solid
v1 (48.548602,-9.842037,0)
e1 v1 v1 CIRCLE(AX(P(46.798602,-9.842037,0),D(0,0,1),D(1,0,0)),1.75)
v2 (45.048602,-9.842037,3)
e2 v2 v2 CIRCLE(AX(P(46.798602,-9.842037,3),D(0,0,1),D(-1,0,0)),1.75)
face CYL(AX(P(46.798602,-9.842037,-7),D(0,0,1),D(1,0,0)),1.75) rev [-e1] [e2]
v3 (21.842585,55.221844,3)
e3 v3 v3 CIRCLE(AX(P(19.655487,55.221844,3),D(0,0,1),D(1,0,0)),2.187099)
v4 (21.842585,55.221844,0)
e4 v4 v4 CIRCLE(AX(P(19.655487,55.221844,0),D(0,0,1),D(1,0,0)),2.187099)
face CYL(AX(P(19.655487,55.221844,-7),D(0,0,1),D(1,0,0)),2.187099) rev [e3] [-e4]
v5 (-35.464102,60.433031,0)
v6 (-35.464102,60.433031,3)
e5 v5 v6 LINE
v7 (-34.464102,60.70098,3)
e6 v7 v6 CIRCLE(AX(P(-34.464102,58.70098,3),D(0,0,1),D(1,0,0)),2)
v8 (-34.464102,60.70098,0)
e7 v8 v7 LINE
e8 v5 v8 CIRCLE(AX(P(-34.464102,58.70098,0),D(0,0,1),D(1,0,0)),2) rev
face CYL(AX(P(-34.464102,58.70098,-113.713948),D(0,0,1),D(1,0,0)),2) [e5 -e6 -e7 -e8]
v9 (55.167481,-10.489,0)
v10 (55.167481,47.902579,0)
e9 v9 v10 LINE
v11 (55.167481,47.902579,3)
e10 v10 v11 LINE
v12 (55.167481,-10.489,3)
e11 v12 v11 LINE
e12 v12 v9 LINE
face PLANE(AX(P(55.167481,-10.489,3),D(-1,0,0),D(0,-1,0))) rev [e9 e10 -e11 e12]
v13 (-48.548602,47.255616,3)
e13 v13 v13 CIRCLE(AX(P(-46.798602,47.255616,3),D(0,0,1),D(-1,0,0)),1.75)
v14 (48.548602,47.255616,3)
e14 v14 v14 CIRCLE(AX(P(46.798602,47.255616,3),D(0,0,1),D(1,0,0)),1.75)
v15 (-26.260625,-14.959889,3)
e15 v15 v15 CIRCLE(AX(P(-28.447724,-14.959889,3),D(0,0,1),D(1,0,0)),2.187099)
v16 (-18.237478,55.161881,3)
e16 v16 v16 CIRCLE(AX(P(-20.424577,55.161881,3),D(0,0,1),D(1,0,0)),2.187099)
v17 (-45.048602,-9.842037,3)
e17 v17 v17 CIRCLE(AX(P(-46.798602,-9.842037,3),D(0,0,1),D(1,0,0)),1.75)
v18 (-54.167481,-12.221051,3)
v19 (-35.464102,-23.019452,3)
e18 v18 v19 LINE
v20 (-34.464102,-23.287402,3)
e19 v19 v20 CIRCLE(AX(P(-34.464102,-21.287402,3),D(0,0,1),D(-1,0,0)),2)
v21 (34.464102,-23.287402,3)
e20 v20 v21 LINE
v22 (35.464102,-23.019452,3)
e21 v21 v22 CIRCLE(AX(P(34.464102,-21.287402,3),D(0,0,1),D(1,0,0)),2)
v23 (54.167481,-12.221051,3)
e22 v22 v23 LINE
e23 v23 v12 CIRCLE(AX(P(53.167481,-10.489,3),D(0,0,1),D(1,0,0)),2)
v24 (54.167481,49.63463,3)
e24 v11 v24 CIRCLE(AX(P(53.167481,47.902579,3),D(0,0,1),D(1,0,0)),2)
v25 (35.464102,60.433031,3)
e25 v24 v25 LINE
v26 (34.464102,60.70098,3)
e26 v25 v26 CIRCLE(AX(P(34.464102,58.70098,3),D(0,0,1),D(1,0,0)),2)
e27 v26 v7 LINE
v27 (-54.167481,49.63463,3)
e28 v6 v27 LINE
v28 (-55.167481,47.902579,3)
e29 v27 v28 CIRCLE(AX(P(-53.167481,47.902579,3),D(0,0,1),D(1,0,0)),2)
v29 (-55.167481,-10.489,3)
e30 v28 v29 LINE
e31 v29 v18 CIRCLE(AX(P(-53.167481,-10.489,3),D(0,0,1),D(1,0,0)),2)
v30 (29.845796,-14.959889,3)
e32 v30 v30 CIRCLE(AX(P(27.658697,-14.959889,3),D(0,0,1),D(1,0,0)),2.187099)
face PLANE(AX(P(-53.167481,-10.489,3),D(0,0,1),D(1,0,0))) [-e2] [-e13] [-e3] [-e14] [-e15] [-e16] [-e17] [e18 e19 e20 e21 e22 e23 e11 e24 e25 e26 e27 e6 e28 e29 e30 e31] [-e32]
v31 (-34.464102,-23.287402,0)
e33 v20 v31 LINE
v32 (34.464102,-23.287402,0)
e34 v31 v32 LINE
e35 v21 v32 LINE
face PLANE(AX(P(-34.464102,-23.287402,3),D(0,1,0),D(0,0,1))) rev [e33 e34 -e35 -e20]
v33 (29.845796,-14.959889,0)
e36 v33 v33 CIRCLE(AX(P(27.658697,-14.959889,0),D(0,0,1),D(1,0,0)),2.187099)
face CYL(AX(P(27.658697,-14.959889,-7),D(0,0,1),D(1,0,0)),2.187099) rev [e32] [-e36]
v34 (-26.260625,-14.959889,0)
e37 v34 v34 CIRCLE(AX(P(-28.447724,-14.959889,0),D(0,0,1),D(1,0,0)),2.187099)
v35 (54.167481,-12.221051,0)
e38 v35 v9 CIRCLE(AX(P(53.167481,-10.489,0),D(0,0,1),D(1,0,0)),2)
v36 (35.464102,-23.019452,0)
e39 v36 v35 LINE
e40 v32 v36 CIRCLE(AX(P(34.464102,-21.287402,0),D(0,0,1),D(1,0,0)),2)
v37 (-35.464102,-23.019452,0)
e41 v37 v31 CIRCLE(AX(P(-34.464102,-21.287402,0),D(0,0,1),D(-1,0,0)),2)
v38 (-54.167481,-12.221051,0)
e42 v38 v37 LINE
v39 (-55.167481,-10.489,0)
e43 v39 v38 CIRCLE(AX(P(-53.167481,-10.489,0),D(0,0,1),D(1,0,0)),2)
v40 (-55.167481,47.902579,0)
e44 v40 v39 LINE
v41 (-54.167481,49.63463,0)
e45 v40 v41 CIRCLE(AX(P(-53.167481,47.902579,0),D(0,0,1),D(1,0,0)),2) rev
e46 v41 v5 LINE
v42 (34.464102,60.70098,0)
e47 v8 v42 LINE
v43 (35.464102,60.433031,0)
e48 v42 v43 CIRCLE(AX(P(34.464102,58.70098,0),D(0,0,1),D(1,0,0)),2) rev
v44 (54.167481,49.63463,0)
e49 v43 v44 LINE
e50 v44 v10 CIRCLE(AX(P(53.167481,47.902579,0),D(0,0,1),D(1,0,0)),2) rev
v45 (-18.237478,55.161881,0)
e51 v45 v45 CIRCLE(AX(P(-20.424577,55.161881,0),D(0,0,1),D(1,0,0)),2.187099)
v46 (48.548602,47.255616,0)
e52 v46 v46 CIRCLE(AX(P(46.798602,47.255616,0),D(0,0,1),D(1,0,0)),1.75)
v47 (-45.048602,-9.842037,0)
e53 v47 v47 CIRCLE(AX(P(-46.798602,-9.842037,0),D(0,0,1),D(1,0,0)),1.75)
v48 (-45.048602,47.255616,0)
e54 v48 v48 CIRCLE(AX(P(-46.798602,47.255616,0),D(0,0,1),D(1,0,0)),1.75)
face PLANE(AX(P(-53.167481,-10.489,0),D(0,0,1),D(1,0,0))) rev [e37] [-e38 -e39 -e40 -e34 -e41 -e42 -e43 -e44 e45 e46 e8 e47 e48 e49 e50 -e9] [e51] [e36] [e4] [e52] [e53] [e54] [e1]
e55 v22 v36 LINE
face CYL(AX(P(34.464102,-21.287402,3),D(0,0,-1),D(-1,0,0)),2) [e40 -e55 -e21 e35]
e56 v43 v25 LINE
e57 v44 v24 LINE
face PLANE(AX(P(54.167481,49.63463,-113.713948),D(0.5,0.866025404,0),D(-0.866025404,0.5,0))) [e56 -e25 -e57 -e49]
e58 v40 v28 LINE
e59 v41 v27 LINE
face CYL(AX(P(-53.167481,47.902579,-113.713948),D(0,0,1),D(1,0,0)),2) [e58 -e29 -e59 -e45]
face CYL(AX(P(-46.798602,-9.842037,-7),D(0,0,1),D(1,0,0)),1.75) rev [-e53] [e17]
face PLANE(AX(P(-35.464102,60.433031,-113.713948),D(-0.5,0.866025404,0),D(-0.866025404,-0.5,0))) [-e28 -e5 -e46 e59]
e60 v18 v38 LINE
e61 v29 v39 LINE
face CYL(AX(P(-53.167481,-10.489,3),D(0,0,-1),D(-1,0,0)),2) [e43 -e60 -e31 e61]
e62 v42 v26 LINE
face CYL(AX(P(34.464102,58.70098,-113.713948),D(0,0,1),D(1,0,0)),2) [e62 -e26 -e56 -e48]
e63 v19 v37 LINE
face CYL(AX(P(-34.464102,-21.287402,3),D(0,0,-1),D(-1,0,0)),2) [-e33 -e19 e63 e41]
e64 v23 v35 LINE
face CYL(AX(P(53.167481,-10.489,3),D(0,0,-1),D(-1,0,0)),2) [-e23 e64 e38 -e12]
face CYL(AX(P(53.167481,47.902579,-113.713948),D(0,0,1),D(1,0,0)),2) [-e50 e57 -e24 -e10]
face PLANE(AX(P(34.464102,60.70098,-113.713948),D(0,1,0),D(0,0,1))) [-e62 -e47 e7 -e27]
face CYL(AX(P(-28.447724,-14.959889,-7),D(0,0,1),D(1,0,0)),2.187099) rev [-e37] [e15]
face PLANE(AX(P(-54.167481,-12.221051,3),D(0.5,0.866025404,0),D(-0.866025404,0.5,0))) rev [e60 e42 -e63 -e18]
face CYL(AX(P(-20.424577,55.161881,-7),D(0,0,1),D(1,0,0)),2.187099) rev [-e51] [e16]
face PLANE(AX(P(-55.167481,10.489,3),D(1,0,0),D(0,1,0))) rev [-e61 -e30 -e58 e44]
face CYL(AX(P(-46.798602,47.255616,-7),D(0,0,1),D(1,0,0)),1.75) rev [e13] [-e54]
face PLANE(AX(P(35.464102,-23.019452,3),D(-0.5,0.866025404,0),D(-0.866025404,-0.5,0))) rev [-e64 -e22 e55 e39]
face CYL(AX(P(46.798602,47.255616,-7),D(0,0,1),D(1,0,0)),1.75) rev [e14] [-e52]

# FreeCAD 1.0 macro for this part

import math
import FreeCAD as App
import Part
import Sketcher

V = App.Vector
Q = App.Units.Quantity

doc = App.newDocument("Part")
body = doc.addObject("PartDesign::Body", "Body")

# Sketch on XY plane
sketch1 = doc.addObject("Sketcher::SketchObject", "Sketch")
body.addObject(sketch1)
sketch1.AttachmentSupport = (doc.XY_Plane, [""])
sketch1.MapMode = "FlatFace"
sketch1.addGeometry([
    Part.LineSegment(V(34.5, 23.3, 0), V(-34.5, 23.3, 0)),  # 0
    Part.ArcOfCircle(Part.Circle(V(-34.5, 21.3, 0), V(0, 0, 1), 2), math.radians(90), math.radians(120)),  # 1
    Part.LineSegment(V(-35.5, 23, 0), V(-54.2, 12.2, 0)),  # 2
    Part.ArcOfCircle(Part.Circle(V(-53.2, 10.5, 0), V(0, 0, 1), 2), math.radians(120), math.radians(180)),  # 3
    Part.LineSegment(V(-55.2, 10.5, 0), V(-55.2, -10.5, 0)),  # 4
    Part.ArcOfCircle(Part.Circle(V(-53.2, -10.5, 0), V(0, 0, 1), 2), math.radians(-180), math.radians(-120)),  # 5
    Part.LineSegment(V(-54.2, -12.2, 0), V(-35.5, -23, 0)),  # 6
    Part.ArcOfCircle(Part.Circle(V(-34.5, -21.3, 0), V(0, 0, 1), 2), math.radians(-120), math.radians(-90)),  # 7
    Part.LineSegment(V(-34.5, -23.3, 0), V(34.5, -23.3, 0)),  # 8
    Part.ArcOfCircle(Part.Circle(V(34.5, -21.3, 0), V(0, 0, 1), 2), math.radians(-90), math.radians(-60)),  # 9
    Part.LineSegment(V(35.5, -23, 0), V(54.2, -12.2, 0)),  # 10
    Part.ArcOfCircle(Part.Circle(V(53.2, -10.5, 0), V(0, 0, 1), 2), math.radians(-60), math.radians(0)),  # 11
    Part.LineSegment(V(55.2, -10.5, 0), V(55.2, 10.5, 0)),  # 12
    Part.ArcOfCircle(Part.Circle(V(53.2, 10.5, 0), V(0, 0, 1), 2), math.radians(0), math.radians(60)),  # 13
    Part.LineSegment(V(54.2, 12.2, 0), V(35.5, 23, 0)),  # 14
    Part.ArcOfCircle(Part.Circle(V(34.5, 21.3, 0), V(0, 0, 1), 2), math.radians(60), math.radians(90)),  # 15
], False)
sketch1.addConstraint([
    Sketcher.Constraint("Tangent", 0, 2, 1, 1),
    Sketcher.Constraint("Tangent", 1, 2, 2, 1),
    Sketcher.Constraint("Tangent", 2, 2, 3, 1),
    Sketcher.Constraint("Tangent", 3, 2, 4, 1),
    Sketcher.Constraint("Tangent", 4, 2, 5, 1),
    Sketcher.Constraint("Tangent", 5, 2, 6, 1),
    Sketcher.Constraint("Tangent", 6, 2, 7, 1),
    Sketcher.Constraint("Tangent", 7, 2, 8, 1),
    Sketcher.Constraint("Tangent", 8, 2, 9, 1),
    Sketcher.Constraint("Tangent", 9, 2, 10, 1),
    Sketcher.Constraint("Tangent", 10, 2, 11, 1),
    Sketcher.Constraint("Tangent", 11, 2, 12, 1),
    Sketcher.Constraint("Tangent", 12, 2, 13, 1),
    Sketcher.Constraint("Tangent", 13, 2, 14, 1),
    Sketcher.Constraint("Tangent", 14, 2, 15, 1),
    Sketcher.Constraint("Tangent", 15, 2, 0, 1),
    Sketcher.Constraint("Horizontal", 0),
    Sketcher.Constraint("Vertical", 4),
    Sketcher.Constraint("Horizontal", 8),
    Sketcher.Constraint("Vertical", 12),
    Sketcher.Constraint("Equal", 1, 3),
    Sketcher.Constraint("Equal", 3, 5),
    Sketcher.Constraint("Equal", 5, 7),
    Sketcher.Constraint("Equal", 7, 9),
    Sketcher.Constraint("Equal", 9, 11),
    Sketcher.Constraint("Equal", 11, 13),
    Sketcher.Constraint("Equal", 13, 15),
    Sketcher.Constraint("Symmetric", 1, 3, 9, 3, -1, 1),
    Sketcher.Constraint("Symmetric", 3, 3, 11, 3, -1, 1),
    Sketcher.Constraint("Symmetric", 5, 2, 13, 2, -1, 1),
    Sketcher.Constraint("Symmetric", 6, 2, 9, 2, -2),
    Sketcher.Constraint("Radius", 1, Q("2 mm")),
    Sketcher.Constraint("Angle", 2, Q("-150 deg")),
    Sketcher.Constraint("DistanceY", 4, 2, 4, 1, Q("20.978 mm")),
    Sketcher.Constraint("DistanceX", 1, 3, -1, 1, Q("34.464102 mm")),
    Sketcher.Constraint("DistanceY", -1, 1, 1, 3, Q("21.287402 mm")),
])
pad1 = doc.addObject("PartDesign::Pad", "Pad")
body.addObject(pad1)
pad1.Profile = sketch1
pad1.Length = 3

# Sketch on XY plane
sketch2 = doc.addObject("Sketcher::SketchObject", "Sketch001")
body.addObject(sketch2)
sketch2.AttachmentSupport = (doc.XY_Plane, [""])
sketch2.MapMode = "FlatFace"
sketch2.addGeometry([
    Part.ArcOfCircle(Part.Circle(V(-53.2, -10.5, 0), V(0, 0, 1), 2), math.radians(-180), math.radians(-120)),  # 0
    Part.LineSegment(V(-54.2, -12.2, 0), V(-35.5, -23, 0)),  # 1
    Part.ArcOfCircle(Part.Circle(V(-34.5, -21.3, 0), V(0, 0, 1), 2), math.radians(-120), math.radians(-90)),  # 2
    Part.LineSegment(V(-34.5, -23.3, 0), V(34.5, -23.3, 0)),  # 3
    Part.ArcOfCircle(Part.Circle(V(34.5, -21.3, 0), V(0, 0, 1), 2), math.radians(-90), math.radians(-60)),  # 4
    Part.LineSegment(V(35.5, -23, 0), V(54.2, -12.2, 0)),  # 5
    Part.ArcOfCircle(Part.Circle(V(53.2, -10.5, 0), V(0, 0, 1), 2), math.radians(-60), math.radians(0)),  # 6
    Part.LineSegment(V(55.2, -10.5, 0), V(55.2, 36.5, 0)),  # 7
    Part.ArcOfCircle(Part.Circle(V(53.2, 36.5, 0), V(0, 0, 1), 2), math.radians(0), math.radians(60)),  # 8
    Part.LineSegment(V(54.2, 38.3, 0), V(35.5, 49.1, 0)),  # 9
    Part.ArcOfCircle(Part.Circle(V(34.5, 47.3, 0), V(0, 0, 1), 2), math.radians(60), math.radians(90)),  # 10
    Part.LineSegment(V(34.5, 49.3, 0), V(-34.5, 49.3, 0)),  # 11
    Part.ArcOfCircle(Part.Circle(V(-34.5, 47.3, 0), V(0, 0, 1), 2), math.radians(90), math.radians(120)),  # 12
    Part.LineSegment(V(-35.5, 49.1, 0), V(-54.2, 38.3, 0)),  # 13
    Part.ArcOfCircle(Part.Circle(V(-53.2, 36.5, 0), V(0, 0, 1), 2), math.radians(120), math.radians(180)),  # 14
    Part.LineSegment(V(-55.2, 36.5, 0), V(-55.2, -10.5, 0)),  # 15
], False)
sketch2.addConstraint([
    Sketcher.Constraint("Tangent", 0, 2, 1, 1),
    Sketcher.Constraint("Tangent", 1, 2, 2, 1),
    Sketcher.Constraint("Tangent", 2, 2, 3, 1),
    Sketcher.Constraint("Tangent", 3, 2, 4, 1),
    Sketcher.Constraint("Tangent", 4, 2, 5, 1),
    Sketcher.Constraint("Tangent", 5, 2, 6, 1),
    Sketcher.Constraint("Tangent", 6, 2, 7, 1),
    Sketcher.Constraint("Tangent", 7, 2, 8, 1),
    Sketcher.Constraint("Tangent", 8, 2, 9, 1),
    Sketcher.Constraint("Tangent", 9, 2, 10, 1),
    Sketcher.Constraint("Tangent", 10, 2, 11, 1),
    Sketcher.Constraint("Tangent", 11, 2, 12, 1),
    Sketcher.Constraint("Tangent", 12, 2, 13, 1),
    Sketcher.Constraint("Tangent", 13, 2, 14, 1),
    Sketcher.Constraint("Tangent", 14, 2, 15, 1),
    Sketcher.Constraint("Tangent", 15, 2, 0, 1),
    Sketcher.Constraint("Horizontal", 3),
    Sketcher.Constraint("Vertical", 7),
    Sketcher.Constraint("Horizontal", 11),
    Sketcher.Constraint("Vertical", 15),
    Sketcher.Constraint("Equal", 0, 2),
    Sketcher.Constraint("Equal", 2, 4),
    Sketcher.Constraint("Equal", 4, 6),
    Sketcher.Constraint("Equal", 6, 8),
    Sketcher.Constraint("Equal", 8, 10),
    Sketcher.Constraint("Equal", 10, 12),
    Sketcher.Constraint("Equal", 12, 14),
    Sketcher.Constraint("Symmetric", 0, 3, 6, 3, -2),
    Sketcher.Constraint("Symmetric", 9, 2, 12, 2, -2),
    Sketcher.Constraint("Parallel", 1, 9),
    Sketcher.Constraint("Parallel", 5, 13),
    Sketcher.Constraint("Vertical", 4, 3, 10, 3),
    Sketcher.Constraint("Radius", 0, Q("2 mm")),
    Sketcher.Constraint("Angle", 1, Q("-30 deg")),
    Sketcher.Constraint("DistanceY", 0, 3, -1, 1, Q("10.489 mm")),
    Sketcher.Constraint("DistanceY", 7, 1, 7, 2, Q("47.018381 mm")),
    Sketcher.Constraint("DistanceX", 2, 3, -1, 1, Q("34.464102 mm")),
    Sketcher.Constraint("DistanceY", 2, 3, -1, 1, Q("21.287402 mm")),
])
pad2 = doc.addObject("PartDesign::Pad", "Pad001")
body.addObject(pad2)
pad2.Profile = sketch2
pad2.Length = 3

# Sketch on XY plane
sketch3 = doc.addObject("Sketcher::SketchObject", "Sketch002")
body.addObject(sketch3)
sketch3.AttachmentSupport = (doc.XY_Plane, [""])
sketch3.MapMode = "FlatFace"
sketch3.AttachmentOffset = App.Placement(V(0, 0, 3), App.Rotation())
sketch3.addGeometry([
    Part.LineSegment(V(-55.2, 33.2, 0), V(55.2, 33.2, 0)),  # 0
    Part.LineSegment(V(55.2, 33.2, 0), V(55.2, 47.9, 0)),  # 1
    Part.ArcOfCircle(Part.Circle(V(53.2, 47.9, 0), V(0, 0, 1), 2), math.radians(0), math.radians(60)),  # 2
    Part.LineSegment(V(54.2, 49.6, 0), V(35.5, 60.4, 0)),  # 3
    Part.ArcOfCircle(Part.Circle(V(34.5, 58.7, 0), V(0, 0, 1), 2), math.radians(60), math.radians(90)),  # 4
    Part.LineSegment(V(34.5, 60.7, 0), V(-34.5, 60.7, 0)),  # 5
    Part.ArcOfCircle(Part.Circle(V(-34.5, 58.7, 0), V(0, 0, 1), 2), math.radians(90), math.radians(120)),  # 6
    Part.LineSegment(V(-35.5, 60.4, 0), V(-54.2, 49.6, 0)),  # 7
    Part.ArcOfCircle(Part.Circle(V(-53.2, 47.9, 0), V(0, 0, 1), 2), math.radians(120), math.radians(180)),  # 8
    Part.LineSegment(V(-55.2, 47.9, 0), V(-55.2, 33.2, 0)),  # 9
], False)
sketch3.addConstraint([
    Sketcher.Constraint("Coincident", 0, 2, 1, 1),
    Sketcher.Constraint("Tangent", 1, 2, 2, 1),
    Sketcher.Constraint("Tangent", 2, 2, 3, 1),
    Sketcher.Constraint("Tangent", 3, 2, 4, 1),
    Sketcher.Constraint("Tangent", 4, 2, 5, 1),
    Sketcher.Constraint("Tangent", 5, 2, 6, 1),
    Sketcher.Constraint("Tangent", 6, 2, 7, 1),
    Sketcher.Constraint("Tangent", 7, 2, 8, 1),
    Sketcher.Constraint("Tangent", 8, 2, 9, 1),
    Sketcher.Constraint("Coincident", 9, 2, 0, 1),
    Sketcher.Constraint("Horizontal", 0),
    Sketcher.Constraint("Vertical", 1),
    Sketcher.Constraint("Horizontal", 5),
    Sketcher.Constraint("Vertical", 9),
    Sketcher.Constraint("Equal", 2, 4),
    Sketcher.Constraint("Equal", 4, 6),
    Sketcher.Constraint("Equal", 6, 8),
    Sketcher.Constraint("Symmetric", 2, 3, 8, 3, -2),
    Sketcher.Constraint("Horizontal", 3, 2, 6, 2),
    Sketcher.Constraint("Radius", 2, Q("2 mm")),
    Sketcher.Constraint("Angle", 3, Q("150 deg")),
    Sketcher.Constraint("DistanceX", -1, 1, 4, 3, Q("34.464102 mm")),
    Sketcher.Constraint("DistanceY", 2, 3, 4, 3, Q("10.798401 mm")),
    Sketcher.Constraint("DistanceY", 1, 1, 1, 2, Q("14.716287 mm")),
    Sketcher.Constraint("DistanceY", -1, 1, 2, 3, Q("47.902579 mm")),
])
pad3 = doc.addObject("PartDesign::Pad", "Pad002")
body.addObject(pad3)
pad3.Profile = sketch3
pad3.Length = 3
pad3.Reversed = True

# Sketch on XY plane
sketch4 = doc.addObject("Sketcher::SketchObject", "Sketch003")
body.addObject(sketch4)
sketch4.AttachmentSupport = (doc.XY_Plane, [""])
sketch4.MapMode = "FlatFace"
sketch4.AttachmentOffset = App.Placement(V(0, 0, 3), App.Rotation())
sketch4.addGeometry([
    Part.Circle(V(-20.4, 55.2, 0), V(0, 0, 1), 2.2),
    Part.Circle(V(19.7, 55.2, 0), V(0, 0, 1), 2.2),
    Part.Circle(V(27.7, -15, 0), V(0, 0, 1), 2.2),
    Part.Circle(V(-28.4, -15, 0), V(0, 0, 1), 2.2),
], False)
sketch4.addConstraint([
    Sketcher.Constraint("Equal", 0, 1),
    Sketcher.Constraint("Equal", 1, 2),
    Sketcher.Constraint("Equal", 2, 3),
    Sketcher.Constraint("Horizontal", 2, 3, 3, 3),
    Sketcher.Constraint("Diameter", 0, Q("4.374197 mm")),
    Sketcher.Constraint("DistanceY", -1, 1, 0, 3, Q("55.161881 mm")),
    Sketcher.Constraint("DistanceY", 2, 3, -1, 1, Q("14.959889 mm")),
    Sketcher.Constraint("DistanceX", 1, 3, 2, 3, Q("8.003211 mm")),
    Sketcher.Constraint("DistanceX", 3, 3, 2, 3, Q("56.106421 mm")),
    Sketcher.Constraint("DistanceX", 0, 3, -1, 1, Q("20.424577 mm")),
    Sketcher.Constraint("DistanceX", -1, 1, 1, 3, Q("19.655487 mm")),
    Sketcher.Constraint("DistanceY", -1, 1, 1, 3, Q("55.221844 mm")),
])
pocket1 = doc.addObject("PartDesign::Pocket", "Pocket")
body.addObject(pocket1)
pocket1.Profile = sketch4
pocket1.Length = 10

# Sketch on XY plane
sketch5 = doc.addObject("Sketcher::SketchObject", "Sketch004")
body.addObject(sketch5)
sketch5.AttachmentSupport = (doc.XY_Plane, [""])
sketch5.MapMode = "FlatFace"
sketch5.AttachmentOffset = App.Placement(V(0, 0, 3), App.Rotation())
sketch5.addGeometry([
    Part.Circle(V(46.8, 47.3, 0), V(0, 0, 1), 1.8),
    Part.Circle(V(-46.8, 47.3, 0), V(0, 0, 1), 1.8),
    Part.Circle(V(46.8, -9.8, 0), V(0, 0, 1), 1.8),
    Part.Circle(V(-46.8, -9.8, 0), V(0, 0, 1), 1.8),
], False)
sketch5.addConstraint([
    Sketcher.Constraint("Equal", 0, 1),
    Sketcher.Constraint("Equal", 1, 2),
    Sketcher.Constraint("Equal", 2, 3),
    Sketcher.Constraint("Symmetric", 0, 3, 1, 3, -2),
    Sketcher.Constraint("Symmetric", 2, 3, 3, 3, -2),
    Sketcher.Constraint("Vertical", 0, 3, 2, 3),
    Sketcher.Constraint("Diameter", 0, Q("3.5 mm")),
    Sketcher.Constraint("DistanceX", -1, 1, 0, 3, Q("46.798602 mm")),
    Sketcher.Constraint("DistanceY", -1, 1, 0, 3, Q("47.255616 mm")),
    Sketcher.Constraint("DistanceY", 2, 3, -1, 1, Q("9.842037 mm")),
])
pocket2 = doc.addObject("PartDesign::Pocket", "Pocket001")
body.addObject(pocket2)
pocket2.Profile = sketch5
pocket2.Length = 10

doc.recompute()
